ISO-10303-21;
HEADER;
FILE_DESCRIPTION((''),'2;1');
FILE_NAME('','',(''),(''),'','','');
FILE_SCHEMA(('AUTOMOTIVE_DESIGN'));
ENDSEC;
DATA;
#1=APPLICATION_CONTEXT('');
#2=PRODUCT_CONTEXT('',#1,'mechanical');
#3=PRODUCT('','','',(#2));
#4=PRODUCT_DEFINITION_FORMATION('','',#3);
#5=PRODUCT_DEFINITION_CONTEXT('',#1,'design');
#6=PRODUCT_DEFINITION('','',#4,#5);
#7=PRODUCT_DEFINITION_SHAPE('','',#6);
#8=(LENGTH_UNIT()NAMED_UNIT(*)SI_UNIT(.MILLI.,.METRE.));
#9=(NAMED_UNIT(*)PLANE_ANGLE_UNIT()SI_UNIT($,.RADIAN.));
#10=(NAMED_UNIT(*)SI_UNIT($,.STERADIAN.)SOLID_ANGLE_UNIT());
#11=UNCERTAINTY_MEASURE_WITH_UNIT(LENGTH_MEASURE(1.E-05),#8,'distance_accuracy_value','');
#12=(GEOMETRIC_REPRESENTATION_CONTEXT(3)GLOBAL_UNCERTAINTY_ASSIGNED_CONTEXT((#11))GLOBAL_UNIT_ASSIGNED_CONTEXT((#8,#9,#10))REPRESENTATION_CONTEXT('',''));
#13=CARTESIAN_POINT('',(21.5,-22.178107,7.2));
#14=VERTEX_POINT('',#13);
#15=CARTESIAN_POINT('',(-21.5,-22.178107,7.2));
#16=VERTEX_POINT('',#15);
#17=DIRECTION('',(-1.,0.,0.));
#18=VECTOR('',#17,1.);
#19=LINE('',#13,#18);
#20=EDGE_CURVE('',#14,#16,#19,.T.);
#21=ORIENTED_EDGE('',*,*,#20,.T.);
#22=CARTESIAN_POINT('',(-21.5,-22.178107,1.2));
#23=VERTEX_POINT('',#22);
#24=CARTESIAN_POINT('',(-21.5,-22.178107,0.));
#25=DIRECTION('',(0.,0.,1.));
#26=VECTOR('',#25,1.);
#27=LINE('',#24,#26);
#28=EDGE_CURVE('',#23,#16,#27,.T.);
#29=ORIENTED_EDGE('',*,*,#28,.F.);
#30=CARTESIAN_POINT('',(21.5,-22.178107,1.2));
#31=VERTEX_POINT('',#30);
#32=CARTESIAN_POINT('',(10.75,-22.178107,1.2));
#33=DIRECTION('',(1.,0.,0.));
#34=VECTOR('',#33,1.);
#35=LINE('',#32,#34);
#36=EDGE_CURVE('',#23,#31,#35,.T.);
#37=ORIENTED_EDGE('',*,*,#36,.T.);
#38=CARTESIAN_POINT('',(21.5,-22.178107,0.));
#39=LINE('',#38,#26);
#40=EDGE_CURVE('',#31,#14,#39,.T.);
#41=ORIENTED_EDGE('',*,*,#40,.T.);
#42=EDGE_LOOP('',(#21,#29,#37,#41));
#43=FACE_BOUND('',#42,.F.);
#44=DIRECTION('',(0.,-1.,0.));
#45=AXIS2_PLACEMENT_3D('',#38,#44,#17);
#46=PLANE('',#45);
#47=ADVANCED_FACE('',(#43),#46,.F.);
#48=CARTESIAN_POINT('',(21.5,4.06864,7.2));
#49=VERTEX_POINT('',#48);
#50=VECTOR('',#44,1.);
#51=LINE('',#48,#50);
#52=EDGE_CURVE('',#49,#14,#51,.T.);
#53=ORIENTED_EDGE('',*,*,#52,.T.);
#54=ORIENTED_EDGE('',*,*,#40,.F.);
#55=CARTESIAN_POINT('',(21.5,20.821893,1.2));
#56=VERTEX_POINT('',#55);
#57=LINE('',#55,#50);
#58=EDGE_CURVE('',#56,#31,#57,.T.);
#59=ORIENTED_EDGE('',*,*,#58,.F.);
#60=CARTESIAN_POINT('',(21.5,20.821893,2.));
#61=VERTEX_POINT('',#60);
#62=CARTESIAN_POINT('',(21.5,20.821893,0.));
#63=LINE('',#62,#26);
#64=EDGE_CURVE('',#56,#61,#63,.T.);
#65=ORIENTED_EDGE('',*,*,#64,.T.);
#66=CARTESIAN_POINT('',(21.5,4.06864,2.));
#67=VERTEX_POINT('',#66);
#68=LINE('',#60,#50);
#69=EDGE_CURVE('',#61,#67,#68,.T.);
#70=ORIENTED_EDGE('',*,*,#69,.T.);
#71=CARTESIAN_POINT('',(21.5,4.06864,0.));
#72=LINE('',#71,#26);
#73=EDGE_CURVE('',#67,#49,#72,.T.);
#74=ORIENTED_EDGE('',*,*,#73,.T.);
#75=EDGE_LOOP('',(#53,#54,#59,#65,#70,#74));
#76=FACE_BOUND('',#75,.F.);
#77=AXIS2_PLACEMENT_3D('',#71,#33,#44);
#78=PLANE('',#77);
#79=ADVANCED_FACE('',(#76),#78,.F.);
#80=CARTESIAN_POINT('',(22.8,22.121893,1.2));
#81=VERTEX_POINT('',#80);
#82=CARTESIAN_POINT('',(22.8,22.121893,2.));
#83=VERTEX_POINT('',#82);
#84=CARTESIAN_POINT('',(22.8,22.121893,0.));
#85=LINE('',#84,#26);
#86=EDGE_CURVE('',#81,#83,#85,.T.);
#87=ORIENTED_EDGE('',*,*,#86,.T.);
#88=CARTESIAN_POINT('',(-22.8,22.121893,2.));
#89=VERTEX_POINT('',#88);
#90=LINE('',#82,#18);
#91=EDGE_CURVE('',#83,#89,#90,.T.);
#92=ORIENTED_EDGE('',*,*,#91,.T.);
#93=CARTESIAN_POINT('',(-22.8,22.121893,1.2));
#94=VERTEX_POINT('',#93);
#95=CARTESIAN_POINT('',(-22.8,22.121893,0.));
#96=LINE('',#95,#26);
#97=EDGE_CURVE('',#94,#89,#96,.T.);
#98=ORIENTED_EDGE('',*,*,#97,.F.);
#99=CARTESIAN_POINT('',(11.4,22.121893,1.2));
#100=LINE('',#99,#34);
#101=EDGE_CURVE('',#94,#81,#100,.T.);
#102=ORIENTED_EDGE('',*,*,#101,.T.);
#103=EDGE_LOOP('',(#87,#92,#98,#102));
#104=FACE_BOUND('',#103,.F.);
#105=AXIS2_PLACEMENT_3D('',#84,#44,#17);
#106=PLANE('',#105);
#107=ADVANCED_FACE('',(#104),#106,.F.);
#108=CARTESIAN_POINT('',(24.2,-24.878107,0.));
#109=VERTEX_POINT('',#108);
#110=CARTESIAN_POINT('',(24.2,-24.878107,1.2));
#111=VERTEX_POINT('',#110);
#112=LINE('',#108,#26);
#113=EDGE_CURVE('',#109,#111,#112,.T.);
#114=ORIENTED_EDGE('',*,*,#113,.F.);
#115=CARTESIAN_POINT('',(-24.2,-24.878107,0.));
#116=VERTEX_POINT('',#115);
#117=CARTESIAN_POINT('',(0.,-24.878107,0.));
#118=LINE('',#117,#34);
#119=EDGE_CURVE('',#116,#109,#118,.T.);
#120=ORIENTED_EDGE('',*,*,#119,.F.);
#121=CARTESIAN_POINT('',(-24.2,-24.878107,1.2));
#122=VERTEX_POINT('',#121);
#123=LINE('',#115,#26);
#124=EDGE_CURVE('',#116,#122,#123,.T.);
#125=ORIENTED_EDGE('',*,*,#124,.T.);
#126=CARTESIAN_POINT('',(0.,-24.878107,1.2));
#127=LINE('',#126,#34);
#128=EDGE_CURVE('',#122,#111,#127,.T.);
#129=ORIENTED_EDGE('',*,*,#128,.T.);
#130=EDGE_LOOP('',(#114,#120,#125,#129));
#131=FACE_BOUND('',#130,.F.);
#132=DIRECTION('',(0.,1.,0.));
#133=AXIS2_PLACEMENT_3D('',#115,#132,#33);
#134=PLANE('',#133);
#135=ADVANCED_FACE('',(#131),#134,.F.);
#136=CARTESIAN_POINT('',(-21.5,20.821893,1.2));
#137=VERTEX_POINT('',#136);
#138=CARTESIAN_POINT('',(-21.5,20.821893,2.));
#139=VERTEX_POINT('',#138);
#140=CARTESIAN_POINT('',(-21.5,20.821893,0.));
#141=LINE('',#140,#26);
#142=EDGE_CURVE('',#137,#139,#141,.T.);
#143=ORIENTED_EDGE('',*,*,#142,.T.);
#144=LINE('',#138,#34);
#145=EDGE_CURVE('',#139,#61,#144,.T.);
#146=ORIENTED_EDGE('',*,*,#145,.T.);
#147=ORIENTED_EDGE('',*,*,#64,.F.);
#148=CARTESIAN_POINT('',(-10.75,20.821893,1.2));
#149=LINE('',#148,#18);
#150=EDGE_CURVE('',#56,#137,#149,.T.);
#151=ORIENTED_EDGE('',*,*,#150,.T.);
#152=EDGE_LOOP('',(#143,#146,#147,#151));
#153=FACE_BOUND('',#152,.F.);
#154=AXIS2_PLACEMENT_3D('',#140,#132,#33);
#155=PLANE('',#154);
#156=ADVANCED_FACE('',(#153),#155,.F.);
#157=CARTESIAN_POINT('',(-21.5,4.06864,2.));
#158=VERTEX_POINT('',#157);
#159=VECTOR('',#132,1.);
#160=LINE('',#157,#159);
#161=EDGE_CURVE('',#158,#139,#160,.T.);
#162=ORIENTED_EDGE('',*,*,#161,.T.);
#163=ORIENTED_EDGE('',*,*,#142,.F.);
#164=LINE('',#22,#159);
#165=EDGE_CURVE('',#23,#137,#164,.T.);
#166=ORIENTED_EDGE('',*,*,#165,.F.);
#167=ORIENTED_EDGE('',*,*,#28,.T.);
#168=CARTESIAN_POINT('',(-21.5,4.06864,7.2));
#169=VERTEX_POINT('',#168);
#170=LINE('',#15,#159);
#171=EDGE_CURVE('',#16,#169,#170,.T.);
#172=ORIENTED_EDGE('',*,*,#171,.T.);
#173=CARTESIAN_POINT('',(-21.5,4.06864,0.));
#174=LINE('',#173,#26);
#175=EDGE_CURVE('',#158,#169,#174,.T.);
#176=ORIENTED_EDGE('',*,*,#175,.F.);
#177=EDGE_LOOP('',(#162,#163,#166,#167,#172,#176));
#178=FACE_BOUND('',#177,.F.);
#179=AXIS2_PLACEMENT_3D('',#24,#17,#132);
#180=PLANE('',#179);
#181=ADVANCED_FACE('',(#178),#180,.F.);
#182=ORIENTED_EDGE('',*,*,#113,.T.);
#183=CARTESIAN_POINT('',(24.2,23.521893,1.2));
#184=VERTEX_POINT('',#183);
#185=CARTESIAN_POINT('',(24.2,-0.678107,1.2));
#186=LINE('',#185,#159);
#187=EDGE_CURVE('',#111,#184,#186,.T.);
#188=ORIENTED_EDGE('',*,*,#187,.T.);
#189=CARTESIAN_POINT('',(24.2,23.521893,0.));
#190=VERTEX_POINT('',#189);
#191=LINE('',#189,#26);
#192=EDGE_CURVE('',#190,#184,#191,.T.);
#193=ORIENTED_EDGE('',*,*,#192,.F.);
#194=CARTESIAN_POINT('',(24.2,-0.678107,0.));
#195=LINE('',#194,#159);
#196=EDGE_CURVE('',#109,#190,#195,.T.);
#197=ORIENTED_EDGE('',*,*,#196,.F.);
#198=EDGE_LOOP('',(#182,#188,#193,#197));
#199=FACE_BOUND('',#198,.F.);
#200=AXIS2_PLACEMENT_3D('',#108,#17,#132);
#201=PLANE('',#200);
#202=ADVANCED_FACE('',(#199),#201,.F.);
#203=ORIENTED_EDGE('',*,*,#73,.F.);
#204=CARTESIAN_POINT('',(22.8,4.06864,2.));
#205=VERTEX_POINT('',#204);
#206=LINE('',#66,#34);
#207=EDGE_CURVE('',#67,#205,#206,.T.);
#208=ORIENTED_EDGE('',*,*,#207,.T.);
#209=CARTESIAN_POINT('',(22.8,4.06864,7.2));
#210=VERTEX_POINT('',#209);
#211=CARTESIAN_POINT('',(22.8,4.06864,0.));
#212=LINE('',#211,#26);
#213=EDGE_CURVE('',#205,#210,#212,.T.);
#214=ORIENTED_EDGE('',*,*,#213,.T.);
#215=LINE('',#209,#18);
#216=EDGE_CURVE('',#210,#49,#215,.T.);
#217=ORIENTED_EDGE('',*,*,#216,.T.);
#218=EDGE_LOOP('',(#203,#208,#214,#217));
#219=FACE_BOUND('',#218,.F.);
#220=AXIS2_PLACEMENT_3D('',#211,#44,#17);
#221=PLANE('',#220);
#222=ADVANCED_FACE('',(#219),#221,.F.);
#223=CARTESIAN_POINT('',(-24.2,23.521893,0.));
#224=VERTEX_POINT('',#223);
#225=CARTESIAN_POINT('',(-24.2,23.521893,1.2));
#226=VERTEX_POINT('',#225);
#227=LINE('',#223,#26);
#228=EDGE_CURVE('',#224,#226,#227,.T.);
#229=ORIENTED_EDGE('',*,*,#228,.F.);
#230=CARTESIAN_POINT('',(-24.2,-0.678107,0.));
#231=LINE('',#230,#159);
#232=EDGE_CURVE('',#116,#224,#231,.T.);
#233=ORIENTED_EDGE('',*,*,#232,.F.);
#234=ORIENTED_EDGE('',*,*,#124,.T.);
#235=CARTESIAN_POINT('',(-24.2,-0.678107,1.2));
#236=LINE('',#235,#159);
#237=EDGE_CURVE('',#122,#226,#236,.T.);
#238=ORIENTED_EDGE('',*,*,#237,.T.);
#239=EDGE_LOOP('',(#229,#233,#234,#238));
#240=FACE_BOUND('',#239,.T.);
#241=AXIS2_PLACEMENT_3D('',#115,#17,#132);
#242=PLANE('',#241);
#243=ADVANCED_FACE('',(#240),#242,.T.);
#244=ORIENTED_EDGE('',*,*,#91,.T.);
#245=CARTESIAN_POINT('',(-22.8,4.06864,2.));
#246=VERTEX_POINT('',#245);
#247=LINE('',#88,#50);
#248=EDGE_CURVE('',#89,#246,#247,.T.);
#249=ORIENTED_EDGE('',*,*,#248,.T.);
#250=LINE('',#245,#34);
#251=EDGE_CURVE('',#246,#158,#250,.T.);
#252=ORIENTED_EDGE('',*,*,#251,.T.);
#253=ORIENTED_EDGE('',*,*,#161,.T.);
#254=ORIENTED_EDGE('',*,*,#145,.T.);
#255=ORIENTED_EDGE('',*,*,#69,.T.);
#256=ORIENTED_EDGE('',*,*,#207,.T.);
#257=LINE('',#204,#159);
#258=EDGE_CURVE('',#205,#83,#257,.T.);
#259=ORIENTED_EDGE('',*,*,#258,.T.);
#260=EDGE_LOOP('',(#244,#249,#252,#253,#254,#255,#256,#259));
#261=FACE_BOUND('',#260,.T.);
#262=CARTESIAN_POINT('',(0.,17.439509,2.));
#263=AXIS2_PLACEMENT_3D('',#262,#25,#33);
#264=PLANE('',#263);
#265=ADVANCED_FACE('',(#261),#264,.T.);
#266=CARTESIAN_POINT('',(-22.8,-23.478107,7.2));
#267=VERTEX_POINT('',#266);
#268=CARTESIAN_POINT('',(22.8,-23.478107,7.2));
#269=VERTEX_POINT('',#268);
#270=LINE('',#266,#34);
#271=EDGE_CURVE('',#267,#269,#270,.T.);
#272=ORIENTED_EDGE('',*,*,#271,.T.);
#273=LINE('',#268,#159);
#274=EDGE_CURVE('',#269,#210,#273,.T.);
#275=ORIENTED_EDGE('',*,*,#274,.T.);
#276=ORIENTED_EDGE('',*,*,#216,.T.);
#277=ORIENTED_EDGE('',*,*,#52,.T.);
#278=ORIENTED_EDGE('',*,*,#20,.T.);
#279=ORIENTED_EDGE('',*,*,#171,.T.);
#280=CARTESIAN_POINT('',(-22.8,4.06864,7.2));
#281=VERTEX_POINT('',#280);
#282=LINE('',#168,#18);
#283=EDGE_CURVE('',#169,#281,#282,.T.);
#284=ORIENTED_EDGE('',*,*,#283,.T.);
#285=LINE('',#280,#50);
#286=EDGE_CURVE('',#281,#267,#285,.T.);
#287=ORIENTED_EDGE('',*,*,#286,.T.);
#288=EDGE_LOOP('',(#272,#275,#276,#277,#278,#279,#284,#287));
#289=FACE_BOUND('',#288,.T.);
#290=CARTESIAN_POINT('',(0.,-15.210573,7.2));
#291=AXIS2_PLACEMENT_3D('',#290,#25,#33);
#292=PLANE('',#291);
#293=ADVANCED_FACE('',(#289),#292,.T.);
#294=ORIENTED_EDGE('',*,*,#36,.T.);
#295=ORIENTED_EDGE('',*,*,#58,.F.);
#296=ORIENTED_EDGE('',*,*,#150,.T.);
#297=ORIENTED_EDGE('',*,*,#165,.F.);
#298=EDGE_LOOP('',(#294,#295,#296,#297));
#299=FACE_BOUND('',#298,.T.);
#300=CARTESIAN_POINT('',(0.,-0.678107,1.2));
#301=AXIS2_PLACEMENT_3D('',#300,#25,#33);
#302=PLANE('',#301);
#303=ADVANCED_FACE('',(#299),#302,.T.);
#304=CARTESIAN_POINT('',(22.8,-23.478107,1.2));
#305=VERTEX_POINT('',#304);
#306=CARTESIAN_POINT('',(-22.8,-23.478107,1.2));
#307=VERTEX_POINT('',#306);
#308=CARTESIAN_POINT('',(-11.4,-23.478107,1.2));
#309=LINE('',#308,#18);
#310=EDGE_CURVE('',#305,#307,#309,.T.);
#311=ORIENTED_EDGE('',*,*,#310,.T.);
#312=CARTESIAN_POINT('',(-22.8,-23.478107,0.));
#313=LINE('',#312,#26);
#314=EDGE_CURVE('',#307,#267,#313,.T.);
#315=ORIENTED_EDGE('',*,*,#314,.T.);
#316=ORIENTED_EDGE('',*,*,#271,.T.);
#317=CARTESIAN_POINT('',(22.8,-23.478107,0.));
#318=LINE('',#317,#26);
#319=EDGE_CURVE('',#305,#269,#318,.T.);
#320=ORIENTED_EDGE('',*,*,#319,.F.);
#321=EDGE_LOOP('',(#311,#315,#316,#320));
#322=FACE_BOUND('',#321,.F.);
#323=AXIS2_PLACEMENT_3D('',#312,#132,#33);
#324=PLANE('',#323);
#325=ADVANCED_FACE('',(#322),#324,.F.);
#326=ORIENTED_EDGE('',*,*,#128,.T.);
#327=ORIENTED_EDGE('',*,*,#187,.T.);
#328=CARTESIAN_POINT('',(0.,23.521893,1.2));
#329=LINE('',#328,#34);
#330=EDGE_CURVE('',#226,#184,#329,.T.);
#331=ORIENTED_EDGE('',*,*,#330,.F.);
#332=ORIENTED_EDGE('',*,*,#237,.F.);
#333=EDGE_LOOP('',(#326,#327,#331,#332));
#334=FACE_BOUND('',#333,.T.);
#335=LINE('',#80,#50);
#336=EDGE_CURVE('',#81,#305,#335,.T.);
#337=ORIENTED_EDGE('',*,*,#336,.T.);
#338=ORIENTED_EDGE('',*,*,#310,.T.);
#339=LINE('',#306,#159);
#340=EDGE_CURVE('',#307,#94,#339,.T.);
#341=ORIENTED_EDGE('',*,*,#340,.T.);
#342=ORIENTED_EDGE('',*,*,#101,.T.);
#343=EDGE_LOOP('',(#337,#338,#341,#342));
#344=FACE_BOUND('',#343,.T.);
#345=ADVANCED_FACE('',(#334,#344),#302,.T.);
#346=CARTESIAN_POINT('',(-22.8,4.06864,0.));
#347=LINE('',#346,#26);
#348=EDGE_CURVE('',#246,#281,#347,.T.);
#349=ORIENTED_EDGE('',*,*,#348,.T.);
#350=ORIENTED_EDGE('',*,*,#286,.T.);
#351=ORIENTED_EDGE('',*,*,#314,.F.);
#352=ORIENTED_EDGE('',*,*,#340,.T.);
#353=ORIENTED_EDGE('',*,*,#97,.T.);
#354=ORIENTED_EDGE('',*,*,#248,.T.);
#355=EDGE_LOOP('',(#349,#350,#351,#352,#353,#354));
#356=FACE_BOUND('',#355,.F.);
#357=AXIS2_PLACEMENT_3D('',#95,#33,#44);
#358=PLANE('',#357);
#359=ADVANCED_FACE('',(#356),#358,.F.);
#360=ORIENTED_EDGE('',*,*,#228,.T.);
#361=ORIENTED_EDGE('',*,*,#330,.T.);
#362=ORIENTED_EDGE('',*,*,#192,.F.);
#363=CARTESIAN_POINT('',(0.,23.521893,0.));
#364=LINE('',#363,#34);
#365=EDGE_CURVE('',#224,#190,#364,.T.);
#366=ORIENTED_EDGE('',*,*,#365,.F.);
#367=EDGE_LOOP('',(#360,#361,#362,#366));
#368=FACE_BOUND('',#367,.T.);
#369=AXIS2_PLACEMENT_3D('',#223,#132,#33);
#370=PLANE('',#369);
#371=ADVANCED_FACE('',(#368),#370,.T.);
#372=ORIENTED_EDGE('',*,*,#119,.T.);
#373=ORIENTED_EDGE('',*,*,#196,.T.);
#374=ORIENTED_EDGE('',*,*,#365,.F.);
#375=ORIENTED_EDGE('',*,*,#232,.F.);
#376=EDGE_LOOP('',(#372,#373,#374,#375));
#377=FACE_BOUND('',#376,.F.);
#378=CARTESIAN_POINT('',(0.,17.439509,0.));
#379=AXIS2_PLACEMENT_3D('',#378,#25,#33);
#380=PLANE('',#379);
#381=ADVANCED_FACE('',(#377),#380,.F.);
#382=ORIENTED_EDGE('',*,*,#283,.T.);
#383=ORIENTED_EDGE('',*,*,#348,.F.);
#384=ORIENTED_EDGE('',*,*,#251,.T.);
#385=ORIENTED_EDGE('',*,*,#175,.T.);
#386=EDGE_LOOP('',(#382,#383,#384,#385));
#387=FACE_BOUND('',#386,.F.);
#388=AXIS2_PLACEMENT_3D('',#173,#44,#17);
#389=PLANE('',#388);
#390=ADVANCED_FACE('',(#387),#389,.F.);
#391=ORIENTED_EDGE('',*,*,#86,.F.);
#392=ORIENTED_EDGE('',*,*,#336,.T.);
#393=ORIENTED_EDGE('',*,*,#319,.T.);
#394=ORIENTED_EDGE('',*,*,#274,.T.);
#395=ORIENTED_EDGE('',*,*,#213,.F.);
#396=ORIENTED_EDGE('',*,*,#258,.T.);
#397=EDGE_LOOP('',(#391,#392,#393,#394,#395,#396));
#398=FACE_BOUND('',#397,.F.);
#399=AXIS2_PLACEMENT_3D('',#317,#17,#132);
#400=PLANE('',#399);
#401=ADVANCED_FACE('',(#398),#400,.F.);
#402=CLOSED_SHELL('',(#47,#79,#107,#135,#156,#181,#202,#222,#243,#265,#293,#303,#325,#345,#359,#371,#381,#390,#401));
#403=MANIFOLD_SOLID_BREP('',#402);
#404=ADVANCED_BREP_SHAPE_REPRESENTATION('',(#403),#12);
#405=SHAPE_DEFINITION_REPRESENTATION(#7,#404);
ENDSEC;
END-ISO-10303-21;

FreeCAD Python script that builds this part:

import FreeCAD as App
import Part
import Sketcher
from FreeCAD import Vector


def add_polygon(sketch, points):
    """Adds a closed chain of lines whose ends are joined by coincident constraints."""
    first, n = sketch.GeometryCount, len(points)
    for a, b in zip(points, points[1:] + points[:1]):
        sketch.addGeometry(Part.LineSegment(App.Vector(*a, 0), App.Vector(*b, 0)), False)
    for i in range(n):
        sketch.addConstraint(Sketcher.Constraint("Coincident", first + i, 2, first + (i + 1) % n, 1))

doc = App.newDocument("Part")
params = doc.addObject("Spreadsheet::Sheet", "Params")
for row, (alias, value) in enumerate([
    ("sketch1_width", "48.4 mm"),
    ("pad1_length", "1.2 mm"),
    ("sketch2_width", "43 mm"),
    ("sketch2_width2", "1.3 mm"),
    ("pad2_length", "7.2 mm"),
    ("sketch3_width", "43 mm"),
    ("sketch3_width2", "45.6 mm"),
    ("pad3_length", "2 mm"),
], start=1):
    params.set(f"A{row}", alias)
    params.set(f"B{row}", "=" + value)
    params.setAlias(f"B{row}", alias)

body = doc.addObject("PartDesign::Body", "Body")

# Sketch on XY plane
sketch1 = body.newObject("Sketcher::SketchObject", "Sketch")
sketch1.AttachmentSupport = (doc.getObject("XY_Plane"), [""])
sketch1.MapMode = "FlatFace"
add_polygon(sketch1, [(-24.2, 23.521893), (-24.2, -24.878107), (24.2, -24.878107), (24.2, 23.521893)])  # lines 0-3
sketch1.addConstraint(Sketcher.Constraint("Vertical", 0))
sketch1.addConstraint(Sketcher.Constraint("Horizontal", 1))
sketch1.addConstraint(Sketcher.Constraint("Vertical", 2))
sketch1.addConstraint(Sketcher.Constraint("Horizontal", 3))
sketch1.addConstraint(Sketcher.Constraint("Equal", 3, 0))
sketch1.addConstraint(Sketcher.Constraint("DistanceX", 1, 1, 1, 2, 48.4))
sketch1.addConstraint(Sketcher.Constraint("DistanceX", 0, 2, -1, 1, 24.2))
sketch1.addConstraint(Sketcher.Constraint("DistanceY", 0, 2, -1, 1, 24.878107))
sketch1.setExpression("Constraints[9]", "Params.sketch1_width")
pad1 = body.newObject("PartDesign::Pad", "Pad")
pad1.Profile = sketch1
pad1.setExpression("Length", "Params.pad1_length")

# Sketch on XY plane
sketch2 = body.newObject("Sketcher::SketchObject", "Sketch001")
sketch2.AttachmentSupport = (doc.getObject("XY_Plane"), [""])
sketch2.MapMode = "FlatFace"
add_polygon(sketch2, [(-21.5, 4.06864), (-22.8, 4.06864), (-22.8, -23.478107), (22.8, -23.478107), (22.8, 4.06864), (21.5, 4.06864), (21.5, -22.178107), (-21.5, -22.178107)])  # lines 0-7
sketch2.addConstraint(Sketcher.Constraint("Horizontal", 0))
sketch2.addConstraint(Sketcher.Constraint("Vertical", 1))
sketch2.addConstraint(Sketcher.Constraint("Horizontal", 2))
sketch2.addConstraint(Sketcher.Constraint("Vertical", 3))
sketch2.addConstraint(Sketcher.Constraint("Horizontal", 4))
sketch2.addConstraint(Sketcher.Constraint("Vertical", 5))
sketch2.addConstraint(Sketcher.Constraint("Horizontal", 6))
sketch2.addConstraint(Sketcher.Constraint("Vertical", 7))
sketch2.addConstraint(Sketcher.Constraint("Symmetric", 0, 2, 3, 2, -2))
sketch2.addConstraint(Sketcher.Constraint("Equal", 0, 4))
sketch2.addConstraint(Sketcher.Constraint("DistanceX", 6, 2, 6, 1, 43.0))
sketch2.addConstraint(Sketcher.Constraint("DistanceX", 0, 2, 0, 1, 1.3))
sketch2.addConstraint(Sketcher.Constraint("DistanceY", 2, 2, 5, 2, 1.3))
sketch2.addConstraint(Sketcher.Constraint("DistanceY", 1, 2, 1, 1, 27.546747))
sketch2.addConstraint(Sketcher.Constraint("DistanceY", -1, 1, 0, 2, 4.06864))
sketch2.setExpression("Constraints[18]", "Params.sketch2_width")
sketch2.setExpression("Constraints[19]", "Params.sketch2_width2")
pad2 = body.newObject("PartDesign::Pad", "Pad001")
pad2.Profile = sketch2
pad2.setExpression("Length", "Params.pad2_length")

# Sketch on XY plane
sketch3 = body.newObject("Sketcher::SketchObject", "Sketch002")
sketch3.AttachmentSupport = (doc.getObject("XY_Plane"), [""])
sketch3.MapMode = "FlatFace"
add_polygon(sketch3, [(22.8, 22.121893), (-22.8, 22.121893), (-22.8, 4.06864), (-21.5, 4.06864), (-21.5, 20.821893), (21.5, 20.821893), (21.5, 4.06864), (22.8, 4.06864)])  # lines 0-7
sketch3.addConstraint(Sketcher.Constraint("Horizontal", 0))
sketch3.addConstraint(Sketcher.Constraint("Vertical", 1))
sketch3.addConstraint(Sketcher.Constraint("Horizontal", 2))
sketch3.addConstraint(Sketcher.Constraint("Vertical", 3))
sketch3.addConstraint(Sketcher.Constraint("Horizontal", 4))
sketch3.addConstraint(Sketcher.Constraint("Vertical", 5))
sketch3.addConstraint(Sketcher.Constraint("Horizontal", 6))
sketch3.addConstraint(Sketcher.Constraint("Vertical", 7))
sketch3.addConstraint(Sketcher.Constraint("Symmetric", 2, 2, 5, 2, -2))
sketch3.addConstraint(Sketcher.Constraint("Equal", 2, 6))
sketch3.addConstraint(Sketcher.Constraint("DistanceX", 4, 1, 4, 2, 43.0))
sketch3.addConstraint(Sketcher.Constraint("DistanceX", 0, 2, 0, 1, 45.6))
sketch3.addConstraint(Sketcher.Constraint("DistanceY", 3, 2, 0, 2, 1.3))
sketch3.addConstraint(Sketcher.Constraint("DistanceY", 1, 2, 1, 1, 18.053253))
sketch3.addConstraint(Sketcher.Constraint("DistanceY", -1, 1, 1, 2, 4.06864))
sketch3.setExpression("Constraints[18]", "Params.sketch3_width")
sketch3.setExpression("Constraints[19]", "Params.sketch3_width2")
pad3 = body.newObject("PartDesign::Pad", "Pad002")
pad3.Profile = sketch3
pad3.setExpression("Length", "Params.pad3_length")

doc.recompute()
